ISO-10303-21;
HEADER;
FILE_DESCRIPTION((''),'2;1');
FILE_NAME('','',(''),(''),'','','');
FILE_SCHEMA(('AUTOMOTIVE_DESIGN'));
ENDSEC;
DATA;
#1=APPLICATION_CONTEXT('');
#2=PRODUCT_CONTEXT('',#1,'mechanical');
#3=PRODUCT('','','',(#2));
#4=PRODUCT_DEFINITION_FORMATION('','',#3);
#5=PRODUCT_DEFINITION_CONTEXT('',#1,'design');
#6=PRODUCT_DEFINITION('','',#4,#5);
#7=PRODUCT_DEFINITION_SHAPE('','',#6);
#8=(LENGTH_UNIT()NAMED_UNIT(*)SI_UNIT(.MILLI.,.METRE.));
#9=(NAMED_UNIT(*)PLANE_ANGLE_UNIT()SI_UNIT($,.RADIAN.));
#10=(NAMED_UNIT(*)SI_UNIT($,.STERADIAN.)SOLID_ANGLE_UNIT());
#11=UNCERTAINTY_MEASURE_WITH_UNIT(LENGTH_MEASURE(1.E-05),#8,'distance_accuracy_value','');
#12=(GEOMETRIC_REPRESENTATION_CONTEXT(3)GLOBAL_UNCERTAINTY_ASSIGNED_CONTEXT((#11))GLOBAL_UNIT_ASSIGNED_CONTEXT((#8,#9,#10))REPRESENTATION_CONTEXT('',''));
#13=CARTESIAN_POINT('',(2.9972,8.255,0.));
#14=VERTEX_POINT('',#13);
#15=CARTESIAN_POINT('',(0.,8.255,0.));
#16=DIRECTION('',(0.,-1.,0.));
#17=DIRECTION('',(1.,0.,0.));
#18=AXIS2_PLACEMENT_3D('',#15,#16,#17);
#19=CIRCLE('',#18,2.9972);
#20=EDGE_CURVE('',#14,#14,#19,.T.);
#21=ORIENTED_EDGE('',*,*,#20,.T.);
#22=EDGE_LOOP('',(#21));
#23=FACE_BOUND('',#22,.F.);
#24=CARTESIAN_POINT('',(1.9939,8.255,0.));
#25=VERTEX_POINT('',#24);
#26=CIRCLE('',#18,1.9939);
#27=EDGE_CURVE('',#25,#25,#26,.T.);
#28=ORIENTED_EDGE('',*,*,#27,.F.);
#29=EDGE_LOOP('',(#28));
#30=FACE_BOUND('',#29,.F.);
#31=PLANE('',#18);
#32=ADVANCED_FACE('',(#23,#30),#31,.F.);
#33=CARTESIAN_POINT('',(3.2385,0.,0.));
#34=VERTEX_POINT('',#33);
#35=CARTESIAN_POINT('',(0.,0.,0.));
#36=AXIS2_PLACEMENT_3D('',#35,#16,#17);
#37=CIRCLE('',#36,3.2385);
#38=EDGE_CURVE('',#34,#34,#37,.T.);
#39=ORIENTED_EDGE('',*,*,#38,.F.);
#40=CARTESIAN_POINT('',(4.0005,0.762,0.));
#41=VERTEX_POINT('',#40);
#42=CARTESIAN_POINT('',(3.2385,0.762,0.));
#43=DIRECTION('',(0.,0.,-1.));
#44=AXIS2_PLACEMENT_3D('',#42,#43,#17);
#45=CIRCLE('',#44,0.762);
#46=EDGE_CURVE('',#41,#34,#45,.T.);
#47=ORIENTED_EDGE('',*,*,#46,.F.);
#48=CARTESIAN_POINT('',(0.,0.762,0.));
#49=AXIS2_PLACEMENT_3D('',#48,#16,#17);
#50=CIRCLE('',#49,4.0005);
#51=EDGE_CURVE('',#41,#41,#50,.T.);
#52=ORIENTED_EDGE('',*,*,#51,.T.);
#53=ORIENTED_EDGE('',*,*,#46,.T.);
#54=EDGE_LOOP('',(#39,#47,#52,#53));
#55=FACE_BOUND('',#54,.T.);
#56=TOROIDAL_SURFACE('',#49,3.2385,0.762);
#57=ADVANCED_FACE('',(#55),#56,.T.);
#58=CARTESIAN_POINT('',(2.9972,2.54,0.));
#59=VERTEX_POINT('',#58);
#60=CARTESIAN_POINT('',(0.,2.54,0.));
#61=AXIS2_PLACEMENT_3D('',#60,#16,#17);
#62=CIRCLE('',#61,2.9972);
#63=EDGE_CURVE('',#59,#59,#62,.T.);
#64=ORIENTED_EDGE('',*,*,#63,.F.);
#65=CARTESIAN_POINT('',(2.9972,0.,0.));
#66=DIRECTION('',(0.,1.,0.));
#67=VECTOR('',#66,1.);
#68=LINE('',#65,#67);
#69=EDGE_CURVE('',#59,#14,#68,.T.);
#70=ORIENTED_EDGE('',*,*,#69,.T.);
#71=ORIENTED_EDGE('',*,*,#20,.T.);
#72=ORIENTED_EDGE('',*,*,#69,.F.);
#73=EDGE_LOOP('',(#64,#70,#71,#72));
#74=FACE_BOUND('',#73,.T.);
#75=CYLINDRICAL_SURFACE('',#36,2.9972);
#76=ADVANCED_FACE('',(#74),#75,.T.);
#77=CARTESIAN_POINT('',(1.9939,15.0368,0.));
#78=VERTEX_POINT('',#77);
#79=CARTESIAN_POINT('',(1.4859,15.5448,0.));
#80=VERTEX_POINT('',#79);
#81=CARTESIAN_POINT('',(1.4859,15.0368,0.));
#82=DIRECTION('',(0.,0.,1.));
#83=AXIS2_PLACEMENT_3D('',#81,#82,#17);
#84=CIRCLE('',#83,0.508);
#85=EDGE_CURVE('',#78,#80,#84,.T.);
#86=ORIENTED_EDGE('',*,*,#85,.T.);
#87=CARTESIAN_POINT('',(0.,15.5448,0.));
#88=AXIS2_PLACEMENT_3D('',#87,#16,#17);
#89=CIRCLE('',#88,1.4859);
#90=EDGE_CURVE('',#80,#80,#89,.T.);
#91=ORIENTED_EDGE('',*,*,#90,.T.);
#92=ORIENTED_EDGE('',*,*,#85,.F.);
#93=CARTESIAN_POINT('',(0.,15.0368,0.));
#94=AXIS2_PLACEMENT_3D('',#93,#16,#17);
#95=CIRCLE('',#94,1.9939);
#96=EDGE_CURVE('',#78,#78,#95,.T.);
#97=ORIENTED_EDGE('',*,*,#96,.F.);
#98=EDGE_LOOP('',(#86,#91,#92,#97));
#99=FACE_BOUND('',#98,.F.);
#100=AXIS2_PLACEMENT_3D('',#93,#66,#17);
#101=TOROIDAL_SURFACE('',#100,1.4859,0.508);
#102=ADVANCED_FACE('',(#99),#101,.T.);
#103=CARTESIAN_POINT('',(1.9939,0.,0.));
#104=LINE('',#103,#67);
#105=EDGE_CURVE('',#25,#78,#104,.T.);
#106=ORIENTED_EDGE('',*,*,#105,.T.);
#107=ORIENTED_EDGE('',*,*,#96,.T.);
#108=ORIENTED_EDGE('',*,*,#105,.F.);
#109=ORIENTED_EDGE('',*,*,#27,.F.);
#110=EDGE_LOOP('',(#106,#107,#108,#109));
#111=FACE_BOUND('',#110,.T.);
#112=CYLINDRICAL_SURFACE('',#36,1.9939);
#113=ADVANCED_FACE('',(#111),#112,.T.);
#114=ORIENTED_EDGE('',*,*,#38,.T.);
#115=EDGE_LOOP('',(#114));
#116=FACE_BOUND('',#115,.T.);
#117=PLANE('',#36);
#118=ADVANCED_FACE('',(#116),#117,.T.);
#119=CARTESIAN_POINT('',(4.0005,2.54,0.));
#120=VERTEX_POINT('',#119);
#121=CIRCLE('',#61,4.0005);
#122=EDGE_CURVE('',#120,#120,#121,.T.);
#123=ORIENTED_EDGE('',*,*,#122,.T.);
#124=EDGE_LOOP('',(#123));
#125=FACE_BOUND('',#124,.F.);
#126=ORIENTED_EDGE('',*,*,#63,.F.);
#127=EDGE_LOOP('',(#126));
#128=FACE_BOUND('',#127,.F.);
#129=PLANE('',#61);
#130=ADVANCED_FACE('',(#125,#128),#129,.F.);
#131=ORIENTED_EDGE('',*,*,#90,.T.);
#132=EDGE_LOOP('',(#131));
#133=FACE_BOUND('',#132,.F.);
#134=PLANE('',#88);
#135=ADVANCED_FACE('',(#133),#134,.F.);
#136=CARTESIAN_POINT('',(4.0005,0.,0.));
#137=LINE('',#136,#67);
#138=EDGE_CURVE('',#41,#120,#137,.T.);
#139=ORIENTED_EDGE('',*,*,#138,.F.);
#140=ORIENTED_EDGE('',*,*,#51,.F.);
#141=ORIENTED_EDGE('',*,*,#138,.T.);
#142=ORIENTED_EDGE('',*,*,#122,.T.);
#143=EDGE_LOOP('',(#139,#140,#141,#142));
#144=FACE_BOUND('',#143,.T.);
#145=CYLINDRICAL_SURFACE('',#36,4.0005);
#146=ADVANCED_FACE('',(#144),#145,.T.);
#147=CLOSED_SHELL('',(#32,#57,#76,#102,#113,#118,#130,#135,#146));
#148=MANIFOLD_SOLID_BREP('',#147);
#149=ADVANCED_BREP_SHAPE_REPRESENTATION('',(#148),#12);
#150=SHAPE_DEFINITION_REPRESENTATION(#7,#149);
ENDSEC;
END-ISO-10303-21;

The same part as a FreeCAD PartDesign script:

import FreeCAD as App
import Part
import Sketcher
from FreeCAD import Vector
Q = App.Units.Quantity


def edges_at(feature, points):
    """Names of the edges that pass closest to the given points."""
    edges = feature.Shape.Edges
    near = lambda p: min(range(len(edges)), key=lambda i: edges[i].distToShape(Part.Vertex(*p))[0])
    return sorted({f"Edge{near(p) + 1}" for p in points})

doc = App.newDocument("Part")
body = doc.addObject("PartDesign::Body", "Body")

sketch1 = doc.addObject("Sketcher::SketchObject", "Sketch")
body.addObject(sketch1)
sketch1.AttachmentSupport = (doc.XZ_Plane, [""])
sketch1.MapMode = "FlatFace"
sketch1.addGeometry(Part.Circle(Vector(0, 0, 0), Vector(0, 0, 1), 3), False)
sketch1.addConstraint(Sketcher.Constraint("Coincident", 0, 3, -1, 1))
sketch1.addConstraint(Sketcher.Constraint("Diameter", 0, Q("0.236 in")))
pad1 = doc.addObject("PartDesign::Pad", "Pad")
body.addObject(pad1)
pad1.Profile = sketch1
pad1.Length = Q("0.325 in")
pad1.Reversed = True

sketch2 = doc.addObject("Sketcher::SketchObject", "Sketch001")
body.addObject(sketch2)
sketch2.AttachmentSupport = (doc.XZ_Plane, [""])
sketch2.MapMode = "FlatFace"
sketch2.addGeometry(Part.Circle(Vector(0, 0, 0), Vector(0, 0, 1), 4), False)
sketch2.addGeometry(Part.Circle(Vector(0, 0, 0), Vector(0, 0, 1), 3), False)
sketch2.addConstraint(Sketcher.Constraint("Coincident", 0, 3, -1, 1))
sketch2.addConstraint(Sketcher.Constraint("Coincident", 1, 3, -1, 1))
sketch2.addConstraint(Sketcher.Constraint("Diameter", 0, Q("0.315 in")))
sketch2.addConstraint(Sketcher.Constraint("Diameter", 1, Q("0.236 in")))
pad2 = doc.addObject("PartDesign::Pad", "Pad001")
body.addObject(pad2)
pad2.Profile = sketch2
pad2.Length = Q("0.1 in")
pad2.Reversed = True

sketch3 = doc.addObject("Sketcher::SketchObject", "Sketch002")
body.addObject(sketch3)
sketch3.AttachmentSupport = (doc.XZ_Plane, [""])
sketch3.MapMode = "FlatFace"
sketch3.addGeometry(Part.Circle(Vector(0, 0, 0), Vector(0, 0, 1), 2), False)
sketch3.addConstraint(Sketcher.Constraint("Coincident", 0, 3, -1, 1))
sketch3.addConstraint(Sketcher.Constraint("Diameter", 0, Q("0.157 in")))
pad3 = doc.addObject("PartDesign::Pad", "Pad002")
body.addObject(pad3)
pad3.Profile = sketch3
pad3.Length = Q("0.612 in")
pad3.Reversed = True
doc.recompute()

fillet = doc.addObject("PartDesign::Fillet", "Fillet")
body.addObject(fillet)
fillet.Base = (pad3, edges_at(pad3, [(-1.994, 15.545, 0)]))
fillet.Radius = Q("0.02 in")
doc.recompute()

fillet2 = doc.addObject("PartDesign::Fillet", "Fillet001")
body.addObject(fillet2)
fillet2.Base = (fillet, edges_at(fillet, [(-4, 0, 0)]))
fillet2.Radius = Q("0.03 in")

doc.recompute()
